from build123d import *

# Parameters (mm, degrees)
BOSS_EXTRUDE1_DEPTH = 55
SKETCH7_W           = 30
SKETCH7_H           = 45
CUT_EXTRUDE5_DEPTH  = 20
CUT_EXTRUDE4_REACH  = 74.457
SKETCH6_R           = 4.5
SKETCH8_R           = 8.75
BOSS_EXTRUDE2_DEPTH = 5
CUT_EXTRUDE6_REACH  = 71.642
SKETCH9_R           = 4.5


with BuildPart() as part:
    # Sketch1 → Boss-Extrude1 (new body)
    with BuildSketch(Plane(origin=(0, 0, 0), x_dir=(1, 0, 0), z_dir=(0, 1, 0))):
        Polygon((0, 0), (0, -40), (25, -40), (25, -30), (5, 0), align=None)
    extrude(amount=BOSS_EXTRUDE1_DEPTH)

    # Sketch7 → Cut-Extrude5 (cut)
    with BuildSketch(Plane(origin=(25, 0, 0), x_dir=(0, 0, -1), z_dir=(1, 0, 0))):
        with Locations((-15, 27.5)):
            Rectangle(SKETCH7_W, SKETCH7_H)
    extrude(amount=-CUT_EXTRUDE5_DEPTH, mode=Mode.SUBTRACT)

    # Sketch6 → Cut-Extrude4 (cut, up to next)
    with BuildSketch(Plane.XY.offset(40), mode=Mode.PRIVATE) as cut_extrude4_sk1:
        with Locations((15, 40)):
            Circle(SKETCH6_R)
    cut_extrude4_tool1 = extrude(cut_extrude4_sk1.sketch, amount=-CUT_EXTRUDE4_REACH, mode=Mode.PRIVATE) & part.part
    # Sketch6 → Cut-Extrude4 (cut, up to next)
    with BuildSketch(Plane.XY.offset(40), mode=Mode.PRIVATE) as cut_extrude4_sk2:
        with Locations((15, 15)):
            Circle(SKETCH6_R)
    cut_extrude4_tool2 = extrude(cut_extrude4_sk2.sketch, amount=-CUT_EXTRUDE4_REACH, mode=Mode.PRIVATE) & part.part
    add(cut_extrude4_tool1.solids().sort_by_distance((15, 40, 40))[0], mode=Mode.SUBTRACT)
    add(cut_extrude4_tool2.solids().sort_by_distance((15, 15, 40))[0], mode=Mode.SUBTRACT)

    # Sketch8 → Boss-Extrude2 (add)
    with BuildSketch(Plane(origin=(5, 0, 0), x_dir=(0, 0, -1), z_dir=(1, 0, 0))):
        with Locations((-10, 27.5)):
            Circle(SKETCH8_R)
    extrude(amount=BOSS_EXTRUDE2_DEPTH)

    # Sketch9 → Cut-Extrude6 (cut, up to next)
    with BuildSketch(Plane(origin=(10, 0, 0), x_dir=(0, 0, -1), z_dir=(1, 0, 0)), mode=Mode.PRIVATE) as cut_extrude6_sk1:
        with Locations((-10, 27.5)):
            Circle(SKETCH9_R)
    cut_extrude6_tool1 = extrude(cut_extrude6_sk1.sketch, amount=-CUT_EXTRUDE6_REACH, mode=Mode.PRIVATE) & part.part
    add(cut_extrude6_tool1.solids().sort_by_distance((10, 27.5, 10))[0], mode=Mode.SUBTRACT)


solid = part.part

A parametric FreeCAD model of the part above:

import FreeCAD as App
import Part
import Sketcher
from FreeCAD import Vector
Q = App.Units.Quantity

doc = App.newDocument("Part")
body = doc.addObject("PartDesign::Body", "Body")

sketch1 = body.newObject("Sketcher::SketchObject", "Sketch")
sketch1.AttachmentSupport = (doc.getObject("XZ_Plane"), [""])
sketch1.MapMode = "FlatFace"
sketch1.addGeometry([
    Part.LineSegment(Vector(0, 0, 0), Vector(0, 40, 0)),
    Part.LineSegment(Vector(0, 40, 0), Vector(25, 40, 0)),
    Part.LineSegment(Vector(25, 40, 0), Vector(25, 30, 0)),
    Part.LineSegment(Vector(25, 30, 0), Vector(5, 0, 0)),
    Part.LineSegment(Vector(5, 0, 0), Vector(0, 0, 0)),
], False)
sketch1.addConstraint([
    Sketcher.Constraint("Coincident", 0, 2, 1, 1),
    Sketcher.Constraint("Coincident", 1, 2, 2, 1),
    Sketcher.Constraint("Coincident", 2, 2, 3, 1),
    Sketcher.Constraint("Coincident", 3, 2, 4, 1),
    Sketcher.Constraint("Coincident", 4, 2, 0, 1),
    Sketcher.Constraint("Vertical", 0),
    Sketcher.Constraint("Horizontal", 1),
    Sketcher.Constraint("Vertical", 2),
    Sketcher.Constraint("Horizontal", 4),
    Sketcher.Constraint("Coincident", 4, 2, -1, 1),
    Sketcher.Constraint("DistanceX", 1, 1, 1, 2, Q("25 mm")),
    Sketcher.Constraint("DistanceX", 4, 2, 4, 1, Q("5 mm")),
    Sketcher.Constraint("DistanceY", 0, 1, 0, 2, Q("40 mm")),
    Sketcher.Constraint("DistanceY", 2, 2, 2, 1, Q("10 mm")),
])
pad1 = body.newObject("PartDesign::Pad", "Pad")
pad1.Profile = sketch1
pad1.Length = 55
pad1.Reversed = True

sketch2 = body.newObject("Sketcher::SketchObject", "Sketch001")
sketch2.AttachmentSupport = (doc.getObject("YZ_Plane"), [""])
sketch2.MapMode = "FlatFace"
sketch2.AttachmentOffset = App.Placement(Vector(0, 0, 25), App.Rotation())
sketch2.addGeometry([
    Part.LineSegment(Vector(50, 30, 0), Vector(5, 30, 0)),
    Part.LineSegment(Vector(5, 30, 0), Vector(5, 0, 0)),
    Part.LineSegment(Vector(5, 0, 0), Vector(50, 0, 0)),
    Part.LineSegment(Vector(50, 0, 0), Vector(50, 30, 0)),
], False)
sketch2.addConstraint([
    Sketcher.Constraint("Coincident", 0, 2, 1, 1),
    Sketcher.Constraint("Coincident", 1, 2, 2, 1),
    Sketcher.Constraint("Coincident", 2, 2, 3, 1),
    Sketcher.Constraint("Coincident", 3, 2, 0, 1),
    Sketcher.Constraint("Horizontal", 0),
    Sketcher.Constraint("Vertical", 1),
    Sketcher.Constraint("Horizontal", 2),
    Sketcher.Constraint("Vertical", 3),
    Sketcher.Constraint("PointOnObject", 1, 2, -1),
    Sketcher.Constraint("DistanceX", 0, 2, 0, 1, Q("45 mm")),
    Sketcher.Constraint("DistanceY", 1, 2, 1, 1, Q("30 mm")),
    Sketcher.Constraint("DistanceX", -1, 1, 0, 2, Q("5 mm")),
])
pocket1 = body.newObject("PartDesign::Pocket", "Pocket")
pocket1.Profile = sketch2
pocket1.Length = 20

sketch3 = body.newObject("Sketcher::SketchObject", "Sketch002")
sketch3.AttachmentSupport = (doc.getObject("XY_Plane"), [""])
sketch3.MapMode = "FlatFace"
sketch3.AttachmentOffset = App.Placement(Vector(0, 0, 40), App.Rotation())
sketch3.addGeometry(Part.Circle(Vector(15, 40, 0), Vector(0, 0, 1), 4.5), False)
sketch3.addConstraint([
    Sketcher.Constraint("Diameter", 0, Q("9 mm")),
    Sketcher.Constraint("DistanceX", -1, 1, 0, 3, Q("15 mm")),
    Sketcher.Constraint("DistanceY", -1, 1, 0, 3, Q("40 mm")),
])
pocket2 = body.newObject("PartDesign::Pocket", "Pocket001")
pocket2.Profile = sketch3
pocket2.Type = "UpToFirst"

sketch4 = body.newObject("Sketcher::SketchObject", "Sketch003")
sketch4.AttachmentSupport = (doc.getObject("XY_Plane"), [""])
sketch4.MapMode = "FlatFace"
sketch4.AttachmentOffset = App.Placement(Vector(0, 0, 40), App.Rotation())
sketch4.addGeometry(Part.Circle(Vector(15, 15, 0), Vector(0, 0, 1), 4.5), False)
sketch4.addConstraint([
    Sketcher.Constraint("Diameter", 0, Q("9 mm")),
    Sketcher.Constraint("DistanceX", -1, 1, 0, 3, Q("15 mm")),
    Sketcher.Constraint("DistanceY", -1, 1, 0, 3, Q("15 mm")),
])
pocket3 = body.newObject("PartDesign::Pocket", "Pocket002")
pocket3.Profile = sketch4
pocket3.Type = "UpToFirst"

sketch5 = body.newObject("Sketcher::SketchObject", "Sketch004")
sketch5.AttachmentSupport = (doc.getObject("YZ_Plane"), [""])
sketch5.MapMode = "FlatFace"
sketch5.AttachmentOffset = App.Placement(Vector(0, 0, 5), App.Rotation())
sketch5.addGeometry(Part.Circle(Vector(28, 10, 0), Vector(0, 0, 1), 9), False)
sketch5.addConstraint([
    Sketcher.Constraint("Diameter", 0, Q("17.5 mm")),
    Sketcher.Constraint("DistanceY", -1, 1, 0, 3, Q("10 mm")),
    Sketcher.Constraint("DistanceX", -1, 1, 0, 3, Q("27.5 mm")),
])
pad2 = body.newObject("PartDesign::Pad", "Pad001")
pad2.Profile = sketch5
pad2.Length = 5

sketch6 = body.newObject("Sketcher::SketchObject", "Sketch005")
sketch6.AttachmentSupport = (doc.getObject("YZ_Plane"), [""])
sketch6.MapMode = "FlatFace"
sketch6.AttachmentOffset = App.Placement(Vector(0, 0, 10), App.Rotation())
sketch6.addGeometry(Part.Circle(Vector(27.5, 10, 0), Vector(0, 0, 1), 4.5), False)
sketch6.addConstraint([
    Sketcher.Constraint("Diameter", 0, Q("9 mm")),
    Sketcher.Constraint("DistanceY", -1, 1, 0, 3, Q("10 mm")),
    Sketcher.Constraint("DistanceX", -1, 1, 0, 3, Q("27.5 mm")),
])
pocket4 = body.newObject("PartDesign::Pocket", "Pocket003")
pocket4.Profile = sketch6
pocket4.Type = "UpToFirst"

doc.recompute()
